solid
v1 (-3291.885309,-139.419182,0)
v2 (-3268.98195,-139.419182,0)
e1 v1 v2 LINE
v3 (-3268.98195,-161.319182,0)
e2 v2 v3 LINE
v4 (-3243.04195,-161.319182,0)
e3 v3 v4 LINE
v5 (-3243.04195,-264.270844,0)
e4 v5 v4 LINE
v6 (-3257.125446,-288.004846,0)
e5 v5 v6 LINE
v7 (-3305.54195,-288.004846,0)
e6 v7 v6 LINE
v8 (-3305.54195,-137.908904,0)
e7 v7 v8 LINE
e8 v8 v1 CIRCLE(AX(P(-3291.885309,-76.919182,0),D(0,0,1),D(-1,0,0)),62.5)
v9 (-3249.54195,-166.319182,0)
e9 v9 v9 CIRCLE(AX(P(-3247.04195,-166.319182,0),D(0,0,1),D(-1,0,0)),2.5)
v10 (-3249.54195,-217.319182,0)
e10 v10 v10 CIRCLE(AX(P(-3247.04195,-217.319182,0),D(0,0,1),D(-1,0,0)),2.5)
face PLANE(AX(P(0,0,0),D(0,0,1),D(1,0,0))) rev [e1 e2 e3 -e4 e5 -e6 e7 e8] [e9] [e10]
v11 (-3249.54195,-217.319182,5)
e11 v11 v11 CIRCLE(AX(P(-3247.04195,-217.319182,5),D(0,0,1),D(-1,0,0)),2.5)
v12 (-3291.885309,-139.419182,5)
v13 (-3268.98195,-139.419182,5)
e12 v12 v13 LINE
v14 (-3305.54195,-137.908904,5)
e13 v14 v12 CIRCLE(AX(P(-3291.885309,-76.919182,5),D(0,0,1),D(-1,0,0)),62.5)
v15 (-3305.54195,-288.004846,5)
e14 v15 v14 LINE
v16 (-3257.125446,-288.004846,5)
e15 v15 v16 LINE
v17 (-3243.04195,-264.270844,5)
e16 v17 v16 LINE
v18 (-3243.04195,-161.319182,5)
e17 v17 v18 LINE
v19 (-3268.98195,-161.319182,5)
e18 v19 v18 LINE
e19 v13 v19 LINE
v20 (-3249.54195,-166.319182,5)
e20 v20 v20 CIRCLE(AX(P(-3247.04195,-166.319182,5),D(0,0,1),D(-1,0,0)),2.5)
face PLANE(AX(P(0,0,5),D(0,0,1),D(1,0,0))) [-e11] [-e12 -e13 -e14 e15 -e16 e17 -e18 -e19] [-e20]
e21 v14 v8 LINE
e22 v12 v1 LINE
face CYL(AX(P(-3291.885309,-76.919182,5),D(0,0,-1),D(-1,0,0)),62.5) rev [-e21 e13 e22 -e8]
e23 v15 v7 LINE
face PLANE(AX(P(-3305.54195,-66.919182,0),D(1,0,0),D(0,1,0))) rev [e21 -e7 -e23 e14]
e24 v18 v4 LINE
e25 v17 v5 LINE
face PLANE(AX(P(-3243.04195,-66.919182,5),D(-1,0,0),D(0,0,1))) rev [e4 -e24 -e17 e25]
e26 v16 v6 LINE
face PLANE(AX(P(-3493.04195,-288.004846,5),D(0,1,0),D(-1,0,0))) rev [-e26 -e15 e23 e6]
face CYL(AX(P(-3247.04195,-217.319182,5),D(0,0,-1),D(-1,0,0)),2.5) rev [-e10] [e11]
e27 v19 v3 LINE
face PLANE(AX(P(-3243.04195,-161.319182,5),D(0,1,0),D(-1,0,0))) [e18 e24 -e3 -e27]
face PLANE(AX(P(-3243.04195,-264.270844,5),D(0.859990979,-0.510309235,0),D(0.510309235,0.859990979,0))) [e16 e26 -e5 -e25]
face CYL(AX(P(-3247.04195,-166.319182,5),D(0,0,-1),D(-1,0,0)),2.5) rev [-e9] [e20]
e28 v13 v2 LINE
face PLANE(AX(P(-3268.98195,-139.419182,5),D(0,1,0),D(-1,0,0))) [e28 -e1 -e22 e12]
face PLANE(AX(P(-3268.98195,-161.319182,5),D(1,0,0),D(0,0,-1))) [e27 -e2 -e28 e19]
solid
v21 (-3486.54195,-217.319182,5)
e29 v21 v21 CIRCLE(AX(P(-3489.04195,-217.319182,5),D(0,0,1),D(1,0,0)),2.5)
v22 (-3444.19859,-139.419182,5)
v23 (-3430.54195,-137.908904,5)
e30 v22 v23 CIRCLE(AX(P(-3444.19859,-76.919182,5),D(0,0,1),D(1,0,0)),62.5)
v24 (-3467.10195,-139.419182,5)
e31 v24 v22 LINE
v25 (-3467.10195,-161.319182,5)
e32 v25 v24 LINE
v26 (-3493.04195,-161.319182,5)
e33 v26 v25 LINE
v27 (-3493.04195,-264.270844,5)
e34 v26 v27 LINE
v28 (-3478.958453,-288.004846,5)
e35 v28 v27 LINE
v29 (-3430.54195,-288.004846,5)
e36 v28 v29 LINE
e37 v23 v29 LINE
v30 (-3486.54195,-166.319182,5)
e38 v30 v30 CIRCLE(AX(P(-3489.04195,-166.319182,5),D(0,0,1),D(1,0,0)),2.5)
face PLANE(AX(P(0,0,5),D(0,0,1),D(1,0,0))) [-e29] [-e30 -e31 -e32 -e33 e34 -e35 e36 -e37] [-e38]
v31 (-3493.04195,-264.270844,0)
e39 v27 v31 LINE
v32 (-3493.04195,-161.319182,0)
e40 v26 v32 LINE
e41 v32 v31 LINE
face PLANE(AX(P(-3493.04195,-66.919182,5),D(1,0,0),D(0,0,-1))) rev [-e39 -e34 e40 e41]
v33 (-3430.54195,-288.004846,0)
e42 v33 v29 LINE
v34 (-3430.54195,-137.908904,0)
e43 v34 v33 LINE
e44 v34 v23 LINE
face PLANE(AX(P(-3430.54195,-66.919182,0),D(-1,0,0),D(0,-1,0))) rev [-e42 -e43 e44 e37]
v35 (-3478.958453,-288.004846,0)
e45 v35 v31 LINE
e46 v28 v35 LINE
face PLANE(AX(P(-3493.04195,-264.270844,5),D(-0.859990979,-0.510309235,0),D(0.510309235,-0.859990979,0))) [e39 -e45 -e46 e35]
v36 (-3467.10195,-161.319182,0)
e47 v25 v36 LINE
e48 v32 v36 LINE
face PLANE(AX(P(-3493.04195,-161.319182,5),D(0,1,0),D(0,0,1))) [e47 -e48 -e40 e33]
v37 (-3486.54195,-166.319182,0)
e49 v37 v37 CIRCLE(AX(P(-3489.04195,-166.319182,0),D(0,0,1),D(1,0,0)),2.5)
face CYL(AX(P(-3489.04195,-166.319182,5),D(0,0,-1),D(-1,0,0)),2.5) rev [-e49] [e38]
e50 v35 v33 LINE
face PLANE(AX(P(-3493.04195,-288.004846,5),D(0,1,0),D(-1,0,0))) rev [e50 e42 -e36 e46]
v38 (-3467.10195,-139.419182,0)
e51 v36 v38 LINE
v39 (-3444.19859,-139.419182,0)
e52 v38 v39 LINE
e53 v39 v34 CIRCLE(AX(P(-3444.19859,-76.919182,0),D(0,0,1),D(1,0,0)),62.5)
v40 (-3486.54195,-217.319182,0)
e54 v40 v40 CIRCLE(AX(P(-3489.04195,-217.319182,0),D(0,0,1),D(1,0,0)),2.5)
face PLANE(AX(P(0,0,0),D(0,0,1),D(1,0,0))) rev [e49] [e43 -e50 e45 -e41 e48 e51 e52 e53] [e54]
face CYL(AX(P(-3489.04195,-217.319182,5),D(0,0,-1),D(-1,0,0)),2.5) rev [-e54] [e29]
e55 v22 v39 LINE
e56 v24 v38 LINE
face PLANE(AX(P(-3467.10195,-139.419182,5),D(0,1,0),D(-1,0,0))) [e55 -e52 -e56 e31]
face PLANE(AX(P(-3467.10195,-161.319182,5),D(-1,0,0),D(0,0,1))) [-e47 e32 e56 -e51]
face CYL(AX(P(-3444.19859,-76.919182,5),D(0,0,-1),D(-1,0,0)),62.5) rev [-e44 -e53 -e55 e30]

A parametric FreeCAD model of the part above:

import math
import FreeCAD as App
import Part
import Sketcher
Q = App.Units.Quantity

doc = App.newDocument("Part")
body = doc.addObject("PartDesign::Body", "Body")
body.AllowCompound = True

sketch1 = body.newObject("Sketcher::SketchObject", "Sketch")
sketch1.AttachmentSupport = (doc.getObject("XY_Plane"), [""])
sketch1.MapMode = "FlatFace"
sketch1.addGeometry([
    Part.LineSegment(App.Vector(-3493.04195, -66.919182, 0), App.Vector(-3493.04195, -288.004846, 0)),
    Part.LineSegment(App.Vector(-3493.04195, -288.004846, 0), App.Vector(-3243.04195, -288.004846, 0)),
    Part.LineSegment(App.Vector(-3243.04195, -288.004846, 0), App.Vector(-3243.04195, -66.919182, 0)),
    Part.LineSegment(App.Vector(-3243.04195, -66.919182, 0), App.Vector(-3493.04195, -66.919182, 0)),
    Part.Circle(App.Vector(-3489.04195, -217.319182, 0), App.Vector(0, 0, 1), 2.5),
    Part.Circle(App.Vector(-3247.04195, -217.319182, 0), App.Vector(0, 0, 1), 2.5),
    Part.Circle(App.Vector(-3489.04195, -166.319182, 0), App.Vector(0, 0, 1), 2.5),
    Part.Circle(App.Vector(-3247.04195, -166.319182, 0), App.Vector(0, 0, 1), 2.5),
], False)
sketch1.addConstraint([
    Sketcher.Constraint("Coincident", 0, 2, 1, 1),
    Sketcher.Constraint("Coincident", 1, 2, 2, 1),
    Sketcher.Constraint("Coincident", 2, 2, 3, 1),
    Sketcher.Constraint("Coincident", 3, 2, 0, 1),
    Sketcher.Constraint("Vertical", 0),
    Sketcher.Constraint("Horizontal", 1),
    Sketcher.Constraint("Vertical", 2),
    Sketcher.Constraint("Horizontal", 3),
    Sketcher.Constraint("Equal", 4, 5),
    Sketcher.Constraint("Equal", 5, 6),
    Sketcher.Constraint("Equal", 6, 7),
    Sketcher.Constraint("Horizontal", 4, 3, 5, 3),
    Sketcher.Constraint("Horizontal", 6, 3, 7, 3),
    Sketcher.Constraint("Vertical", 4, 3, 6, 3),
    Sketcher.Constraint("Vertical", 5, 3, 7, 3),
    Sketcher.Constraint("Diameter", 4, Q("5 mm")),
    Sketcher.Constraint("DistanceX", 1, 1, 1, 2, Q("250 mm")),
    Sketcher.Constraint("DistanceX", 4, 3, 5, 3, Q("242 mm")),
    Sketcher.Constraint("DistanceY", 4, 3, 6, 3, Q("51 mm")),
    Sketcher.Constraint("DistanceX", 0, 2, 4, 3, Q("4 mm")),
    Sketcher.Constraint("DistanceY", 7, 3, 2, 2, Q("99.4 mm")),
    Sketcher.Constraint("DistanceY", 0, 2, 0, 1, Q("221.085664 mm")),
    Sketcher.Constraint("DistanceX", 4, 3, -1, 1, Q("3489.04195 mm")),
    Sketcher.Constraint("DistanceY", 4, 3, -1, 1, Q("217.319182 mm")),
])
pad1 = body.newObject("PartDesign::Pad", "Pad")
pad1.Profile = sketch1
pad1.Length = 5

sketch2 = body.newObject("Sketcher::SketchObject", "Sketch001")
sketch2.AttachmentSupport = (doc.getObject("XY_Plane"), [""])
sketch2.MapMode = "FlatFace"
sketch2.addGeometry([
    Part.Circle(App.Vector(-3368.04195, -300.417289, 0), App.Vector(0, 0, 1), 62.5),
    Part.LineSegment(App.Vector(-3493.04195, -264.270844, 0), App.Vector(-3503.457885, -270.451546, 0)),
    Part.LineSegment(App.Vector(-3503.457885, -270.451546, 0), App.Vector(-3489.374388, -294.185548, 0)),
    Part.LineSegment(App.Vector(-3489.374388, -294.185548, 0), App.Vector(-3478.958453, -288.004846, 0)),
    Part.LineSegment(App.Vector(-3478.958453, -288.004846, 0), App.Vector(-3493.04195, -264.270844, 0)),
    Part.LineSegment(App.Vector(-3493.04195, -66.919182, 0), App.Vector(-3493.04195, -161.319182, 0)),
    Part.LineSegment(App.Vector(-3493.04195, -161.319182, 0), App.Vector(-3467.10195, -161.319182, 0)),
    Part.LineSegment(App.Vector(-3467.10195, -161.319182, 0), App.Vector(-3467.10195, -139.419182, 0)),
    Part.LineSegment(App.Vector(-3467.10195, -139.419182, 0), App.Vector(-3444.19859, -139.419182, 0)),
    Part.ArcOfCircle(Part.Circle(App.Vector(-3444.19859, -76.919182, 0), App.Vector(0, 0, 1), 62.5), math.radians(-90), math.radians(9.206896)),
    Part.LineSegment(App.Vector(-3382.503777, -66.919182, 0), App.Vector(-3493.04195, -66.919182, 0)),
    Part.LineSegment(App.Vector(-3257.125446, -288.004846, 0), App.Vector(-3246.709511, -294.185548, 0)),
    Part.LineSegment(App.Vector(-3246.709511, -294.185548, 0), App.Vector(-3232.626014, -270.451546, 0)),
    Part.LineSegment(App.Vector(-3232.626014, -270.451546, 0), App.Vector(-3243.04195, -264.270844, 0)),
    Part.LineSegment(App.Vector(-3243.04195, -264.270844, 0), App.Vector(-3257.125446, -288.004846, 0)),
    Part.LineSegment(App.Vector(-3291.885309, -139.419182, 0), App.Vector(-3268.98195, -139.419182, 0)),
    Part.LineSegment(App.Vector(-3268.98195, -139.419182, 0), App.Vector(-3268.98195, -161.319182, 0)),
    Part.LineSegment(App.Vector(-3268.98195, -161.319182, 0), App.Vector(-3243.04195, -161.319182, 0)),
    Part.LineSegment(App.Vector(-3243.04195, -161.319182, 0), App.Vector(-3243.04195, -66.919182, 0)),
    Part.LineSegment(App.Vector(-3243.04195, -66.919182, 0), App.Vector(-3353.580122, -66.919182, 0)),
    Part.ArcOfCircle(Part.Circle(App.Vector(-3291.885309, -76.919182, 0), App.Vector(0, 0, 1), 62.5), math.radians(170.793104), math.radians(270)),
], False)
sketch2.addConstraint([
    Sketcher.Constraint("Coincident", 1, 2, 2, 1),
    Sketcher.Constraint("Coincident", 2, 2, 3, 1),
    Sketcher.Constraint("Coincident", 3, 2, 4, 1),
    Sketcher.Constraint("Coincident", 4, 2, 1, 1),
    Sketcher.Constraint("Coincident", 5, 2, 6, 1),
    Sketcher.Constraint("Coincident", 6, 2, 7, 1),
    Sketcher.Constraint("Coincident", 7, 2, 8, 1),
    Sketcher.Constraint("Tangent", 8, 2, 9, 1),
    Sketcher.Constraint("Coincident", 9, 2, 10, 1),
    Sketcher.Constraint("Coincident", 10, 2, 5, 1),
    Sketcher.Constraint("Coincident", 11, 2, 12, 1),
    Sketcher.Constraint("Coincident", 12, 2, 13, 1),
    Sketcher.Constraint("Coincident", 13, 2, 14, 1),
    Sketcher.Constraint("Coincident", 14, 2, 11, 1),
    Sketcher.Constraint("Coincident", 15, 2, 16, 1),
    Sketcher.Constraint("Coincident", 16, 2, 17, 1),
    Sketcher.Constraint("Coincident", 17, 2, 18, 1),
    Sketcher.Constraint("Coincident", 18, 2, 19, 1),
    Sketcher.Constraint("Coincident", 19, 2, 20, 1),
    Sketcher.Constraint("Tangent", 20, 2, 15, 1),
    Sketcher.Constraint("Vertical", 5),
    Sketcher.Constraint("Horizontal", 6),
    Sketcher.Constraint("Vertical", 7),
    Sketcher.Constraint("Horizontal", 8),
    Sketcher.Constraint("Horizontal", 10),
    Sketcher.Constraint("Horizontal", 15),
    Sketcher.Constraint("Vertical", 16),
    Sketcher.Constraint("Horizontal", 17),
    Sketcher.Constraint("Vertical", 18),
    Sketcher.Constraint("Horizontal", 19),
    Sketcher.Constraint("Equal", 0, 9),
    Sketcher.Constraint("Equal", 9, 20),
    Sketcher.Constraint("Perpendicular", 1, 2),
    Sketcher.Constraint("Perpendicular", 2, 3),
    Sketcher.Constraint("Perpendicular", 3, 4),
    Sketcher.Constraint("Perpendicular", 11, 12),
    Sketcher.Constraint("Perpendicular", 12, 13),
    Sketcher.Constraint("Perpendicular", 13, 14),
    Sketcher.Constraint("Horizontal", 9, 3, 20, 3),
    Sketcher.Constraint("Horizontal", 2, 2, 11, 2),
    Sketcher.Constraint("Horizontal", 1, 2, 12, 2),
    Sketcher.Constraint("Horizontal", 4, 2, 13, 2),
    Sketcher.Constraint("Horizontal", 6, 2, 16, 2),
    Sketcher.Constraint("Horizontal", 10, 2, 18, 2),
    Sketcher.Constraint("Vertical", 4, 2, 5, 2),
    Sketcher.Constraint("Vertical", 13, 2, 17, 2),
    Sketcher.Constraint("Equal", 8, 15),
    Sketcher.Constraint("Equal", 6, 17),
    Sketcher.Constraint("Equal", 3, 11),
    Sketcher.Constraint("Diameter", 0, Q("125 mm")),
    Sketcher.Constraint("DistanceY", 5, 2, 5, 1, Q("94.4 mm")),
    Sketcher.Constraint("DistanceY", 7, 1, 7, 2, Q("21.9 mm")),
    Sketcher.Constraint("DistanceX", 4, 2, 0, 3, Q("125 mm")),
    Sketcher.Constraint("DistanceX", 0, 3, 13, 2, Q("125 mm")),
    Sketcher.Constraint("DistanceX", 6, 1, 6, 2, Q("25.94 mm")),
    Sketcher.Constraint("DistanceY", 2, 2, 1, 2, Q("23.734002 mm")),
    Sketcher.Constraint("DistanceX", 8, 1, 8, 2, Q("22.903359 mm")),
    Sketcher.Constraint("DistanceY", 3, 2, 1, 2, Q("17.5533 mm")),
    Sketcher.Constraint("Distance", 1, Q("12.11168 mm")),
    Sketcher.Constraint("DistanceX", 0, 3, -1, 1, Q("3368.04195 mm")),
    Sketcher.Constraint("DistanceY", 0, 3, -1, 1, Q("300.417289 mm")),
    Sketcher.Constraint("DistanceY", 2, 2, -1, 1, Q("294.185548 mm")),
    Sketcher.Constraint("DistanceY", 4, 2, 9, 3, Q("187.351662 mm")),
])
pocket1 = body.newObject("PartDesign::Pocket", "Pocket")
pocket1.Profile = sketch2
pocket1.Type = "ThroughAll"
pocket1.Reversed = True

sketch3 = body.newObject("Sketcher::SketchObject", "Sketch002")
sketch3.AttachmentSupport = (doc.getObject("XY_Plane"), [""])
sketch3.MapMode = "FlatFace"
sketch3.AttachmentOffset = App.Placement(App.Vector(0, 0, 5), App.Rotation())
sketch3.addGeometry([
    Part.LineSegment(App.Vector(-3430.54195, -66.919182, 0), App.Vector(-3430.54195, -365.617289, 0)),
    Part.LineSegment(App.Vector(-3430.54195, -365.617289, 0), App.Vector(-3305.54195, -365.617289, 0)),
    Part.LineSegment(App.Vector(-3305.54195, -365.617289, 0), App.Vector(-3305.54195, -66.919182, 0)),
    Part.LineSegment(App.Vector(-3305.54195, -66.919182, 0), App.Vector(-3430.54195, -66.919182, 0)),
], False)
sketch3.addConstraint([
    Sketcher.Constraint("Coincident", 0, 2, 1, 1),
    Sketcher.Constraint("Coincident", 1, 2, 2, 1),
    Sketcher.Constraint("Coincident", 2, 2, 3, 1),
    Sketcher.Constraint("Coincident", 3, 2, 0, 1),
    Sketcher.Constraint("Vertical", 0),
    Sketcher.Constraint("Horizontal", 1),
    Sketcher.Constraint("Vertical", 2),
    Sketcher.Constraint("Horizontal", 3),
    Sketcher.Constraint("DistanceX", 1, 1, 1, 2, Q("125 mm")),
    Sketcher.Constraint("DistanceY", 0, 2, 0, 1, Q("298.698107 mm")),
    Sketcher.Constraint("DistanceX", 0, 2, -1, 1, Q("3430.54195 mm")),
    Sketcher.Constraint("DistanceY", 0, 2, -1, 1, Q("365.617289 mm")),
])
pocket2 = body.newObject("PartDesign::Pocket", "Pocket001")
pocket2.Profile = sketch3
pocket2.Length = 5

doc.recompute()
